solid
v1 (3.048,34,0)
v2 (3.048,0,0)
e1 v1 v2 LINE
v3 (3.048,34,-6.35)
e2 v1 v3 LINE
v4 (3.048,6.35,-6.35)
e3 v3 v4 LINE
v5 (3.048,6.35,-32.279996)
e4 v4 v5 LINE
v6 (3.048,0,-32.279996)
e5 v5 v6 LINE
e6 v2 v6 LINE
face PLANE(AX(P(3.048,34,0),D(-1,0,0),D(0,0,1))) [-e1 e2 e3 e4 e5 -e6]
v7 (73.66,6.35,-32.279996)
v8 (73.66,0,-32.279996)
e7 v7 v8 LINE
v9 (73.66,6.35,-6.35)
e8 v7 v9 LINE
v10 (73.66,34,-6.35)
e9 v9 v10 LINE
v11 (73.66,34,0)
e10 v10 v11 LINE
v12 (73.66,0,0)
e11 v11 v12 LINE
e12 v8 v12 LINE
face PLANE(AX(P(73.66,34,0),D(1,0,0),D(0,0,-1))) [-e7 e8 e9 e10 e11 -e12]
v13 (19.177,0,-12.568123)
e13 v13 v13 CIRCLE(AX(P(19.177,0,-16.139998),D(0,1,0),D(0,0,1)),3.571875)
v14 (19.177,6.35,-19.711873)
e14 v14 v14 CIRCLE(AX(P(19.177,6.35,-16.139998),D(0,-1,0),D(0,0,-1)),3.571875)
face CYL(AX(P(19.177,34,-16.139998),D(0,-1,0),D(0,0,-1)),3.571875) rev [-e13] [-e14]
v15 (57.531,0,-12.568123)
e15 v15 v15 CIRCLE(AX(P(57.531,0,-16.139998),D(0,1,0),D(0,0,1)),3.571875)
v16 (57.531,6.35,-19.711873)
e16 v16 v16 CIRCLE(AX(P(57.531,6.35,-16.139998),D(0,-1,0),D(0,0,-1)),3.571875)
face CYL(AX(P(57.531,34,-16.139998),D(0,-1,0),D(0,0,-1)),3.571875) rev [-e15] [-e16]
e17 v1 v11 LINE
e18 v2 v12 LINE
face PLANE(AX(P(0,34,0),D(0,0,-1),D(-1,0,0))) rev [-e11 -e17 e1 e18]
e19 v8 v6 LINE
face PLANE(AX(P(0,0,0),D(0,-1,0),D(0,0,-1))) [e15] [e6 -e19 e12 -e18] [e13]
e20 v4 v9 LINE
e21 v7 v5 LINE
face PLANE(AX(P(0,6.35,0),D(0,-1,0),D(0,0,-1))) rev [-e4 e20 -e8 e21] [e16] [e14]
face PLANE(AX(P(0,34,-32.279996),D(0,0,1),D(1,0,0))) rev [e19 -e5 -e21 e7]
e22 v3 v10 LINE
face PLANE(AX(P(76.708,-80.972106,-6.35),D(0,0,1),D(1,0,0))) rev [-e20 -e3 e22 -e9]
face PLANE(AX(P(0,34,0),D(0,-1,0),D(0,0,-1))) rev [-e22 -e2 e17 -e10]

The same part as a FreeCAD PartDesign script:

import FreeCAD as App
import Part
import Sketcher
Q = App.Units.Quantity

doc = App.newDocument("Part")
params = doc.addObject("Spreadsheet::Sheet", "Params")
for row, (alias, value) in enumerate([
    ("sketch1_diameter", "0.28125 in"),
    ("sketch1_width", "3.02 in"),
    ("pad1_length", "34 mm"),
    ("sketch2_width", "3.02 in"),
    ("pocket1_length", "27.65 mm"),
    ("sketch3_width", "2.78 in"),
], start=1):
    params.set(f"A{row}", alias)
    params.set(f"B{row}", "=" + value)
    params.setAlias(f"B{row}", alias)

body = doc.addObject("PartDesign::Body", "Body")

sketch1 = body.newObject("Sketcher::SketchObject", "Sketch")
sketch1.AttachmentSupport = (doc.getObject("XZ_Plane"), [""])
sketch1.MapMode = "FlatFace"
sketch1.addGeometry([
    Part.LineSegment(App.Vector(0, -32.279996, 0), App.Vector(0, 0, 0)),
    Part.LineSegment(App.Vector(0, 0, 0), App.Vector(76.708, 0, 0)),
    Part.LineSegment(App.Vector(76.708, 0, 0), App.Vector(76.708, -32.279996, 0)),
    Part.LineSegment(App.Vector(76.708, -32.279996, 0), App.Vector(0, -32.279996, 0)),
    Part.Circle(App.Vector(19.177, -16.139998, 0), App.Vector(0, 0, 1), 3.571875),
    Part.Circle(App.Vector(57.531, -16.139998, 0), App.Vector(0, 0, 1), 3.571875),
], False)
sketch1.addConstraint([
    Sketcher.Constraint("Coincident", 0, 2, 1, 1),
    Sketcher.Constraint("Coincident", 1, 2, 2, 1),
    Sketcher.Constraint("Coincident", 2, 2, 3, 1),
    Sketcher.Constraint("Coincident", 3, 2, 0, 1),
    Sketcher.Constraint("Vertical", 0),
    Sketcher.Constraint("Horizontal", 1),
    Sketcher.Constraint("Vertical", 2),
    Sketcher.Constraint("Horizontal", 3),
    Sketcher.Constraint("Coincident", 0, 2, -1, 1),
    Sketcher.Constraint("Equal", 4, 5),
    Sketcher.Constraint("Horizontal", 4, 3, 5, 3),
    Sketcher.Constraint("Diameter", 4, Q("0.28125 in")),
    Sketcher.Constraint("DistanceX", 1, 1, 1, 2, Q("3.02 in")),
    Sketcher.Constraint("DistanceX", 4, 3, 5, 3, Q("1.51 in")),
    Sketcher.Constraint("DistanceX", -1, 1, 4, 3, Q("0.755 in")),
    Sketcher.Constraint("DistanceY", 4, 3, -1, 1, Q("16.139998 mm")),
    Sketcher.Constraint("DistanceY", 2, 2, 5, 3, Q("16.139998 mm")),
])
sketch1.setExpression("Constraints[11]", "Params.sketch1_diameter")
sketch1.setExpression("Constraints[12]", "Params.sketch1_width")
pad1 = body.newObject("PartDesign::Pad", "Pad")
pad1.Profile = sketch1
pad1.setExpression("Length", "Params.pad1_length")
pad1.Reversed = True

sketch2 = body.newObject("Sketcher::SketchObject", "Sketch001")
sketch2.AttachmentSupport = (doc.getObject("XZ_Plane"), [""])
sketch2.MapMode = "FlatFace"
sketch2.AttachmentOffset = App.Placement(App.Vector(0, 0, -34), App.Rotation())
sketch2.addGeometry([
    Part.LineSegment(App.Vector(0, -32.279996, 0), App.Vector(0, -6.35, 0)),
    Part.LineSegment(App.Vector(0, -6.35, 0), App.Vector(76.708, -6.35, 0)),
    Part.LineSegment(App.Vector(76.708, -6.35, 0), App.Vector(76.708, -32.279996, 0)),
    Part.LineSegment(App.Vector(76.708, -32.279996, 0), App.Vector(0, -32.279996, 0)),
], False)
sketch2.addConstraint([
    Sketcher.Constraint("Coincident", 0, 2, 1, 1),
    Sketcher.Constraint("Coincident", 1, 2, 2, 1),
    Sketcher.Constraint("Coincident", 2, 2, 3, 1),
    Sketcher.Constraint("Coincident", 3, 2, 0, 1),
    Sketcher.Constraint("Vertical", 0),
    Sketcher.Constraint("Horizontal", 1),
    Sketcher.Constraint("Vertical", 2),
    Sketcher.Constraint("Horizontal", 3),
    Sketcher.Constraint("PointOnObject", 0, 2, -2),
    Sketcher.Constraint("DistanceX", 1, 1, 1, 2, Q("3.02 in")),
    Sketcher.Constraint("DistanceY", 0, 2, -1, 1, Q("0.25 in")),
    Sketcher.Constraint("DistanceY", 0, 1, 0, 2, Q("25.929996 mm")),
])
sketch2.setExpression("Constraints[9]", "Params.sketch2_width")
pocket1 = body.newObject("PartDesign::Pocket", "Pocket")
pocket1.Profile = sketch2
pocket1.setExpression("Length", "Params.pocket1_length")
pocket1.Reversed = True

sketch3 = body.newObject("Sketcher::SketchObject", "Sketch002")
sketch3.AttachmentSupport = (doc.getObject("XZ_Plane"), [""])
sketch3.MapMode = "FlatFace"
sketch3.addGeometry([
    Part.LineSegment(App.Vector(-9.99, 9.99, 0), App.Vector(-9.99, -42.27, 0)),
    Part.LineSegment(App.Vector(-9.99, -42.27, 0), App.Vector(86.698, -42.27, 0)),
    Part.LineSegment(App.Vector(86.698, -42.27, 0), App.Vector(86.698, 9.99, 0)),
    Part.LineSegment(App.Vector(86.698, 9.99, 0), App.Vector(-9.99, 9.99, 0)),
    Part.LineSegment(App.Vector(73.66, -32.279996, 0), App.Vector(3.048, -32.279996, 0)),
    Part.LineSegment(App.Vector(3.048, -32.279996, 0), App.Vector(3.048, 0, 0)),
    Part.LineSegment(App.Vector(3.048, 0, 0), App.Vector(73.66, 0, 0)),
    Part.LineSegment(App.Vector(73.66, 0, 0), App.Vector(73.66, -32.279996, 0)),
], False)
sketch3.addConstraint([
    Sketcher.Constraint("Coincident", 0, 2, 1, 1),
    Sketcher.Constraint("Coincident", 1, 2, 2, 1),
    Sketcher.Constraint("Coincident", 2, 2, 3, 1),
    Sketcher.Constraint("Coincident", 3, 2, 0, 1),
    Sketcher.Constraint("Coincident", 4, 2, 5, 1),
    Sketcher.Constraint("Coincident", 5, 2, 6, 1),
    Sketcher.Constraint("Coincident", 6, 2, 7, 1),
    Sketcher.Constraint("Coincident", 7, 2, 4, 1),
    Sketcher.Constraint("Vertical", 0),
    Sketcher.Constraint("Horizontal", 1),
    Sketcher.Constraint("Vertical", 2),
    Sketcher.Constraint("Horizontal", 3),
    Sketcher.Constraint("Horizontal", 4),
    Sketcher.Constraint("Vertical", 5),
    Sketcher.Constraint("Horizontal", 6),
    Sketcher.Constraint("Vertical", 7),
    Sketcher.Constraint("PointOnObject", 5, 2, -1),
    Sketcher.Constraint("DistanceX", 4, 2, 4, 1, Q("2.78 in")),
    Sketcher.Constraint("DistanceX", -1, 1, 6, 2, Q("2.9 in")),
    Sketcher.Constraint("DistanceX", 1, 1, 1, 2, Q("96.688 mm")),
    Sketcher.Constraint("DistanceY", 0, 2, 0, 1, Q("52.26 mm")),
    Sketcher.Constraint("DistanceX", 0, 2, -1, 1, Q("9.99 mm")),
    Sketcher.Constraint("DistanceY", 0, 2, -1, 1, Q("42.27 mm")),
    Sketcher.Constraint("DistanceY", 5, 1, 5, 2, Q("32.279996 mm")),
])
sketch3.setExpression("Constraints[17]", "Params.sketch3_width")
pocket2 = body.newObject("PartDesign::Pocket", "Pocket001")
pocket2.Profile = sketch3
pocket2.Type = "ThroughAll"
pocket2.Midplane = True

doc.recompute()
